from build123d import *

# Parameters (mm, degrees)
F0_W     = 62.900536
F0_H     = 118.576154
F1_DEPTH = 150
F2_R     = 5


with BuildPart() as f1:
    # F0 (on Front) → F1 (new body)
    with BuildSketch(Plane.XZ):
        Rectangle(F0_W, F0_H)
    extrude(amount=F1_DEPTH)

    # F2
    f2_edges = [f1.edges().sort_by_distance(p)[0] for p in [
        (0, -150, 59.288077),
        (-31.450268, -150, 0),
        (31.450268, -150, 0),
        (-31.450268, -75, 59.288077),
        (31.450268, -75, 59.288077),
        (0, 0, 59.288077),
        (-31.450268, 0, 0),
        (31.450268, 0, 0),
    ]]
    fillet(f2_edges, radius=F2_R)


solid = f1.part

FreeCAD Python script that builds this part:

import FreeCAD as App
import Part
import Sketcher


def edges_at(feature, points):
    """Names of the edges that pass closest to the given points."""
    edges = feature.Shape.Edges
    near = lambda p: min(range(len(edges)), key=lambda i: edges[i].distToShape(Part.Vertex(*p))[0])
    return sorted({f"Edge{near(p) + 1}" for p in points})

doc = App.newDocument("Part")
body = doc.addObject("PartDesign::Body", "Body")

sketch1 = body.newObject("Sketcher::SketchObject", "Sketch")
sketch1.AttachmentSupport = (doc.getObject("XZ_Plane"), [""])
sketch1.MapMode = "FlatFace"
sketch1.addGeometry([
    Part.LineSegment(App.Vector(-31, 59, 0), App.Vector(-31, -59, 0)),
    Part.LineSegment(App.Vector(-31, -59, 0), App.Vector(31, -59, 0)),
    Part.LineSegment(App.Vector(31, -59, 0), App.Vector(31, 59, 0)),
    Part.LineSegment(App.Vector(31, 59, 0), App.Vector(-31, 59, 0)),
], False)
sketch1.addConstraint([
    Sketcher.Constraint("Coincident", 0, 2, 1, 1),
    Sketcher.Constraint("Coincident", 1, 2, 2, 1),
    Sketcher.Constraint("Coincident", 2, 2, 3, 1),
    Sketcher.Constraint("Coincident", 3, 2, 0, 1),
    Sketcher.Constraint("Vertical", 0),
    Sketcher.Constraint("Horizontal", 1),
    Sketcher.Constraint("Vertical", 2),
    Sketcher.Constraint("Horizontal", 3),
    Sketcher.Constraint("Symmetric", 0, 2, 2, 2, -1, 1),
    Sketcher.Constraint("DistanceX", 1, 1, 1, 2, 62.900536),
    Sketcher.Constraint("DistanceY", 0, 2, 0, 1, 118.576154),
])
pad1 = body.newObject("PartDesign::Pad", "Pad")
pad1.Profile = sketch1
pad1.Length = 150
doc.recompute()

fillet = body.newObject("PartDesign::Fillet", "Fillet")
fillet.Base = (pad1, edges_at(pad1, [
    (0, -150, 59.288),
    (-31.45, -150, 0),
    (31.45, -150, 0),
    (-31.45, -75, 59.288),
    (31.45, -75, 59.288),
    (0, 0, 59.288),
    (-31.45, 0, 0),
    (31.45, 0, 0),
]))
fillet.Radius = 5

doc.recompute()
